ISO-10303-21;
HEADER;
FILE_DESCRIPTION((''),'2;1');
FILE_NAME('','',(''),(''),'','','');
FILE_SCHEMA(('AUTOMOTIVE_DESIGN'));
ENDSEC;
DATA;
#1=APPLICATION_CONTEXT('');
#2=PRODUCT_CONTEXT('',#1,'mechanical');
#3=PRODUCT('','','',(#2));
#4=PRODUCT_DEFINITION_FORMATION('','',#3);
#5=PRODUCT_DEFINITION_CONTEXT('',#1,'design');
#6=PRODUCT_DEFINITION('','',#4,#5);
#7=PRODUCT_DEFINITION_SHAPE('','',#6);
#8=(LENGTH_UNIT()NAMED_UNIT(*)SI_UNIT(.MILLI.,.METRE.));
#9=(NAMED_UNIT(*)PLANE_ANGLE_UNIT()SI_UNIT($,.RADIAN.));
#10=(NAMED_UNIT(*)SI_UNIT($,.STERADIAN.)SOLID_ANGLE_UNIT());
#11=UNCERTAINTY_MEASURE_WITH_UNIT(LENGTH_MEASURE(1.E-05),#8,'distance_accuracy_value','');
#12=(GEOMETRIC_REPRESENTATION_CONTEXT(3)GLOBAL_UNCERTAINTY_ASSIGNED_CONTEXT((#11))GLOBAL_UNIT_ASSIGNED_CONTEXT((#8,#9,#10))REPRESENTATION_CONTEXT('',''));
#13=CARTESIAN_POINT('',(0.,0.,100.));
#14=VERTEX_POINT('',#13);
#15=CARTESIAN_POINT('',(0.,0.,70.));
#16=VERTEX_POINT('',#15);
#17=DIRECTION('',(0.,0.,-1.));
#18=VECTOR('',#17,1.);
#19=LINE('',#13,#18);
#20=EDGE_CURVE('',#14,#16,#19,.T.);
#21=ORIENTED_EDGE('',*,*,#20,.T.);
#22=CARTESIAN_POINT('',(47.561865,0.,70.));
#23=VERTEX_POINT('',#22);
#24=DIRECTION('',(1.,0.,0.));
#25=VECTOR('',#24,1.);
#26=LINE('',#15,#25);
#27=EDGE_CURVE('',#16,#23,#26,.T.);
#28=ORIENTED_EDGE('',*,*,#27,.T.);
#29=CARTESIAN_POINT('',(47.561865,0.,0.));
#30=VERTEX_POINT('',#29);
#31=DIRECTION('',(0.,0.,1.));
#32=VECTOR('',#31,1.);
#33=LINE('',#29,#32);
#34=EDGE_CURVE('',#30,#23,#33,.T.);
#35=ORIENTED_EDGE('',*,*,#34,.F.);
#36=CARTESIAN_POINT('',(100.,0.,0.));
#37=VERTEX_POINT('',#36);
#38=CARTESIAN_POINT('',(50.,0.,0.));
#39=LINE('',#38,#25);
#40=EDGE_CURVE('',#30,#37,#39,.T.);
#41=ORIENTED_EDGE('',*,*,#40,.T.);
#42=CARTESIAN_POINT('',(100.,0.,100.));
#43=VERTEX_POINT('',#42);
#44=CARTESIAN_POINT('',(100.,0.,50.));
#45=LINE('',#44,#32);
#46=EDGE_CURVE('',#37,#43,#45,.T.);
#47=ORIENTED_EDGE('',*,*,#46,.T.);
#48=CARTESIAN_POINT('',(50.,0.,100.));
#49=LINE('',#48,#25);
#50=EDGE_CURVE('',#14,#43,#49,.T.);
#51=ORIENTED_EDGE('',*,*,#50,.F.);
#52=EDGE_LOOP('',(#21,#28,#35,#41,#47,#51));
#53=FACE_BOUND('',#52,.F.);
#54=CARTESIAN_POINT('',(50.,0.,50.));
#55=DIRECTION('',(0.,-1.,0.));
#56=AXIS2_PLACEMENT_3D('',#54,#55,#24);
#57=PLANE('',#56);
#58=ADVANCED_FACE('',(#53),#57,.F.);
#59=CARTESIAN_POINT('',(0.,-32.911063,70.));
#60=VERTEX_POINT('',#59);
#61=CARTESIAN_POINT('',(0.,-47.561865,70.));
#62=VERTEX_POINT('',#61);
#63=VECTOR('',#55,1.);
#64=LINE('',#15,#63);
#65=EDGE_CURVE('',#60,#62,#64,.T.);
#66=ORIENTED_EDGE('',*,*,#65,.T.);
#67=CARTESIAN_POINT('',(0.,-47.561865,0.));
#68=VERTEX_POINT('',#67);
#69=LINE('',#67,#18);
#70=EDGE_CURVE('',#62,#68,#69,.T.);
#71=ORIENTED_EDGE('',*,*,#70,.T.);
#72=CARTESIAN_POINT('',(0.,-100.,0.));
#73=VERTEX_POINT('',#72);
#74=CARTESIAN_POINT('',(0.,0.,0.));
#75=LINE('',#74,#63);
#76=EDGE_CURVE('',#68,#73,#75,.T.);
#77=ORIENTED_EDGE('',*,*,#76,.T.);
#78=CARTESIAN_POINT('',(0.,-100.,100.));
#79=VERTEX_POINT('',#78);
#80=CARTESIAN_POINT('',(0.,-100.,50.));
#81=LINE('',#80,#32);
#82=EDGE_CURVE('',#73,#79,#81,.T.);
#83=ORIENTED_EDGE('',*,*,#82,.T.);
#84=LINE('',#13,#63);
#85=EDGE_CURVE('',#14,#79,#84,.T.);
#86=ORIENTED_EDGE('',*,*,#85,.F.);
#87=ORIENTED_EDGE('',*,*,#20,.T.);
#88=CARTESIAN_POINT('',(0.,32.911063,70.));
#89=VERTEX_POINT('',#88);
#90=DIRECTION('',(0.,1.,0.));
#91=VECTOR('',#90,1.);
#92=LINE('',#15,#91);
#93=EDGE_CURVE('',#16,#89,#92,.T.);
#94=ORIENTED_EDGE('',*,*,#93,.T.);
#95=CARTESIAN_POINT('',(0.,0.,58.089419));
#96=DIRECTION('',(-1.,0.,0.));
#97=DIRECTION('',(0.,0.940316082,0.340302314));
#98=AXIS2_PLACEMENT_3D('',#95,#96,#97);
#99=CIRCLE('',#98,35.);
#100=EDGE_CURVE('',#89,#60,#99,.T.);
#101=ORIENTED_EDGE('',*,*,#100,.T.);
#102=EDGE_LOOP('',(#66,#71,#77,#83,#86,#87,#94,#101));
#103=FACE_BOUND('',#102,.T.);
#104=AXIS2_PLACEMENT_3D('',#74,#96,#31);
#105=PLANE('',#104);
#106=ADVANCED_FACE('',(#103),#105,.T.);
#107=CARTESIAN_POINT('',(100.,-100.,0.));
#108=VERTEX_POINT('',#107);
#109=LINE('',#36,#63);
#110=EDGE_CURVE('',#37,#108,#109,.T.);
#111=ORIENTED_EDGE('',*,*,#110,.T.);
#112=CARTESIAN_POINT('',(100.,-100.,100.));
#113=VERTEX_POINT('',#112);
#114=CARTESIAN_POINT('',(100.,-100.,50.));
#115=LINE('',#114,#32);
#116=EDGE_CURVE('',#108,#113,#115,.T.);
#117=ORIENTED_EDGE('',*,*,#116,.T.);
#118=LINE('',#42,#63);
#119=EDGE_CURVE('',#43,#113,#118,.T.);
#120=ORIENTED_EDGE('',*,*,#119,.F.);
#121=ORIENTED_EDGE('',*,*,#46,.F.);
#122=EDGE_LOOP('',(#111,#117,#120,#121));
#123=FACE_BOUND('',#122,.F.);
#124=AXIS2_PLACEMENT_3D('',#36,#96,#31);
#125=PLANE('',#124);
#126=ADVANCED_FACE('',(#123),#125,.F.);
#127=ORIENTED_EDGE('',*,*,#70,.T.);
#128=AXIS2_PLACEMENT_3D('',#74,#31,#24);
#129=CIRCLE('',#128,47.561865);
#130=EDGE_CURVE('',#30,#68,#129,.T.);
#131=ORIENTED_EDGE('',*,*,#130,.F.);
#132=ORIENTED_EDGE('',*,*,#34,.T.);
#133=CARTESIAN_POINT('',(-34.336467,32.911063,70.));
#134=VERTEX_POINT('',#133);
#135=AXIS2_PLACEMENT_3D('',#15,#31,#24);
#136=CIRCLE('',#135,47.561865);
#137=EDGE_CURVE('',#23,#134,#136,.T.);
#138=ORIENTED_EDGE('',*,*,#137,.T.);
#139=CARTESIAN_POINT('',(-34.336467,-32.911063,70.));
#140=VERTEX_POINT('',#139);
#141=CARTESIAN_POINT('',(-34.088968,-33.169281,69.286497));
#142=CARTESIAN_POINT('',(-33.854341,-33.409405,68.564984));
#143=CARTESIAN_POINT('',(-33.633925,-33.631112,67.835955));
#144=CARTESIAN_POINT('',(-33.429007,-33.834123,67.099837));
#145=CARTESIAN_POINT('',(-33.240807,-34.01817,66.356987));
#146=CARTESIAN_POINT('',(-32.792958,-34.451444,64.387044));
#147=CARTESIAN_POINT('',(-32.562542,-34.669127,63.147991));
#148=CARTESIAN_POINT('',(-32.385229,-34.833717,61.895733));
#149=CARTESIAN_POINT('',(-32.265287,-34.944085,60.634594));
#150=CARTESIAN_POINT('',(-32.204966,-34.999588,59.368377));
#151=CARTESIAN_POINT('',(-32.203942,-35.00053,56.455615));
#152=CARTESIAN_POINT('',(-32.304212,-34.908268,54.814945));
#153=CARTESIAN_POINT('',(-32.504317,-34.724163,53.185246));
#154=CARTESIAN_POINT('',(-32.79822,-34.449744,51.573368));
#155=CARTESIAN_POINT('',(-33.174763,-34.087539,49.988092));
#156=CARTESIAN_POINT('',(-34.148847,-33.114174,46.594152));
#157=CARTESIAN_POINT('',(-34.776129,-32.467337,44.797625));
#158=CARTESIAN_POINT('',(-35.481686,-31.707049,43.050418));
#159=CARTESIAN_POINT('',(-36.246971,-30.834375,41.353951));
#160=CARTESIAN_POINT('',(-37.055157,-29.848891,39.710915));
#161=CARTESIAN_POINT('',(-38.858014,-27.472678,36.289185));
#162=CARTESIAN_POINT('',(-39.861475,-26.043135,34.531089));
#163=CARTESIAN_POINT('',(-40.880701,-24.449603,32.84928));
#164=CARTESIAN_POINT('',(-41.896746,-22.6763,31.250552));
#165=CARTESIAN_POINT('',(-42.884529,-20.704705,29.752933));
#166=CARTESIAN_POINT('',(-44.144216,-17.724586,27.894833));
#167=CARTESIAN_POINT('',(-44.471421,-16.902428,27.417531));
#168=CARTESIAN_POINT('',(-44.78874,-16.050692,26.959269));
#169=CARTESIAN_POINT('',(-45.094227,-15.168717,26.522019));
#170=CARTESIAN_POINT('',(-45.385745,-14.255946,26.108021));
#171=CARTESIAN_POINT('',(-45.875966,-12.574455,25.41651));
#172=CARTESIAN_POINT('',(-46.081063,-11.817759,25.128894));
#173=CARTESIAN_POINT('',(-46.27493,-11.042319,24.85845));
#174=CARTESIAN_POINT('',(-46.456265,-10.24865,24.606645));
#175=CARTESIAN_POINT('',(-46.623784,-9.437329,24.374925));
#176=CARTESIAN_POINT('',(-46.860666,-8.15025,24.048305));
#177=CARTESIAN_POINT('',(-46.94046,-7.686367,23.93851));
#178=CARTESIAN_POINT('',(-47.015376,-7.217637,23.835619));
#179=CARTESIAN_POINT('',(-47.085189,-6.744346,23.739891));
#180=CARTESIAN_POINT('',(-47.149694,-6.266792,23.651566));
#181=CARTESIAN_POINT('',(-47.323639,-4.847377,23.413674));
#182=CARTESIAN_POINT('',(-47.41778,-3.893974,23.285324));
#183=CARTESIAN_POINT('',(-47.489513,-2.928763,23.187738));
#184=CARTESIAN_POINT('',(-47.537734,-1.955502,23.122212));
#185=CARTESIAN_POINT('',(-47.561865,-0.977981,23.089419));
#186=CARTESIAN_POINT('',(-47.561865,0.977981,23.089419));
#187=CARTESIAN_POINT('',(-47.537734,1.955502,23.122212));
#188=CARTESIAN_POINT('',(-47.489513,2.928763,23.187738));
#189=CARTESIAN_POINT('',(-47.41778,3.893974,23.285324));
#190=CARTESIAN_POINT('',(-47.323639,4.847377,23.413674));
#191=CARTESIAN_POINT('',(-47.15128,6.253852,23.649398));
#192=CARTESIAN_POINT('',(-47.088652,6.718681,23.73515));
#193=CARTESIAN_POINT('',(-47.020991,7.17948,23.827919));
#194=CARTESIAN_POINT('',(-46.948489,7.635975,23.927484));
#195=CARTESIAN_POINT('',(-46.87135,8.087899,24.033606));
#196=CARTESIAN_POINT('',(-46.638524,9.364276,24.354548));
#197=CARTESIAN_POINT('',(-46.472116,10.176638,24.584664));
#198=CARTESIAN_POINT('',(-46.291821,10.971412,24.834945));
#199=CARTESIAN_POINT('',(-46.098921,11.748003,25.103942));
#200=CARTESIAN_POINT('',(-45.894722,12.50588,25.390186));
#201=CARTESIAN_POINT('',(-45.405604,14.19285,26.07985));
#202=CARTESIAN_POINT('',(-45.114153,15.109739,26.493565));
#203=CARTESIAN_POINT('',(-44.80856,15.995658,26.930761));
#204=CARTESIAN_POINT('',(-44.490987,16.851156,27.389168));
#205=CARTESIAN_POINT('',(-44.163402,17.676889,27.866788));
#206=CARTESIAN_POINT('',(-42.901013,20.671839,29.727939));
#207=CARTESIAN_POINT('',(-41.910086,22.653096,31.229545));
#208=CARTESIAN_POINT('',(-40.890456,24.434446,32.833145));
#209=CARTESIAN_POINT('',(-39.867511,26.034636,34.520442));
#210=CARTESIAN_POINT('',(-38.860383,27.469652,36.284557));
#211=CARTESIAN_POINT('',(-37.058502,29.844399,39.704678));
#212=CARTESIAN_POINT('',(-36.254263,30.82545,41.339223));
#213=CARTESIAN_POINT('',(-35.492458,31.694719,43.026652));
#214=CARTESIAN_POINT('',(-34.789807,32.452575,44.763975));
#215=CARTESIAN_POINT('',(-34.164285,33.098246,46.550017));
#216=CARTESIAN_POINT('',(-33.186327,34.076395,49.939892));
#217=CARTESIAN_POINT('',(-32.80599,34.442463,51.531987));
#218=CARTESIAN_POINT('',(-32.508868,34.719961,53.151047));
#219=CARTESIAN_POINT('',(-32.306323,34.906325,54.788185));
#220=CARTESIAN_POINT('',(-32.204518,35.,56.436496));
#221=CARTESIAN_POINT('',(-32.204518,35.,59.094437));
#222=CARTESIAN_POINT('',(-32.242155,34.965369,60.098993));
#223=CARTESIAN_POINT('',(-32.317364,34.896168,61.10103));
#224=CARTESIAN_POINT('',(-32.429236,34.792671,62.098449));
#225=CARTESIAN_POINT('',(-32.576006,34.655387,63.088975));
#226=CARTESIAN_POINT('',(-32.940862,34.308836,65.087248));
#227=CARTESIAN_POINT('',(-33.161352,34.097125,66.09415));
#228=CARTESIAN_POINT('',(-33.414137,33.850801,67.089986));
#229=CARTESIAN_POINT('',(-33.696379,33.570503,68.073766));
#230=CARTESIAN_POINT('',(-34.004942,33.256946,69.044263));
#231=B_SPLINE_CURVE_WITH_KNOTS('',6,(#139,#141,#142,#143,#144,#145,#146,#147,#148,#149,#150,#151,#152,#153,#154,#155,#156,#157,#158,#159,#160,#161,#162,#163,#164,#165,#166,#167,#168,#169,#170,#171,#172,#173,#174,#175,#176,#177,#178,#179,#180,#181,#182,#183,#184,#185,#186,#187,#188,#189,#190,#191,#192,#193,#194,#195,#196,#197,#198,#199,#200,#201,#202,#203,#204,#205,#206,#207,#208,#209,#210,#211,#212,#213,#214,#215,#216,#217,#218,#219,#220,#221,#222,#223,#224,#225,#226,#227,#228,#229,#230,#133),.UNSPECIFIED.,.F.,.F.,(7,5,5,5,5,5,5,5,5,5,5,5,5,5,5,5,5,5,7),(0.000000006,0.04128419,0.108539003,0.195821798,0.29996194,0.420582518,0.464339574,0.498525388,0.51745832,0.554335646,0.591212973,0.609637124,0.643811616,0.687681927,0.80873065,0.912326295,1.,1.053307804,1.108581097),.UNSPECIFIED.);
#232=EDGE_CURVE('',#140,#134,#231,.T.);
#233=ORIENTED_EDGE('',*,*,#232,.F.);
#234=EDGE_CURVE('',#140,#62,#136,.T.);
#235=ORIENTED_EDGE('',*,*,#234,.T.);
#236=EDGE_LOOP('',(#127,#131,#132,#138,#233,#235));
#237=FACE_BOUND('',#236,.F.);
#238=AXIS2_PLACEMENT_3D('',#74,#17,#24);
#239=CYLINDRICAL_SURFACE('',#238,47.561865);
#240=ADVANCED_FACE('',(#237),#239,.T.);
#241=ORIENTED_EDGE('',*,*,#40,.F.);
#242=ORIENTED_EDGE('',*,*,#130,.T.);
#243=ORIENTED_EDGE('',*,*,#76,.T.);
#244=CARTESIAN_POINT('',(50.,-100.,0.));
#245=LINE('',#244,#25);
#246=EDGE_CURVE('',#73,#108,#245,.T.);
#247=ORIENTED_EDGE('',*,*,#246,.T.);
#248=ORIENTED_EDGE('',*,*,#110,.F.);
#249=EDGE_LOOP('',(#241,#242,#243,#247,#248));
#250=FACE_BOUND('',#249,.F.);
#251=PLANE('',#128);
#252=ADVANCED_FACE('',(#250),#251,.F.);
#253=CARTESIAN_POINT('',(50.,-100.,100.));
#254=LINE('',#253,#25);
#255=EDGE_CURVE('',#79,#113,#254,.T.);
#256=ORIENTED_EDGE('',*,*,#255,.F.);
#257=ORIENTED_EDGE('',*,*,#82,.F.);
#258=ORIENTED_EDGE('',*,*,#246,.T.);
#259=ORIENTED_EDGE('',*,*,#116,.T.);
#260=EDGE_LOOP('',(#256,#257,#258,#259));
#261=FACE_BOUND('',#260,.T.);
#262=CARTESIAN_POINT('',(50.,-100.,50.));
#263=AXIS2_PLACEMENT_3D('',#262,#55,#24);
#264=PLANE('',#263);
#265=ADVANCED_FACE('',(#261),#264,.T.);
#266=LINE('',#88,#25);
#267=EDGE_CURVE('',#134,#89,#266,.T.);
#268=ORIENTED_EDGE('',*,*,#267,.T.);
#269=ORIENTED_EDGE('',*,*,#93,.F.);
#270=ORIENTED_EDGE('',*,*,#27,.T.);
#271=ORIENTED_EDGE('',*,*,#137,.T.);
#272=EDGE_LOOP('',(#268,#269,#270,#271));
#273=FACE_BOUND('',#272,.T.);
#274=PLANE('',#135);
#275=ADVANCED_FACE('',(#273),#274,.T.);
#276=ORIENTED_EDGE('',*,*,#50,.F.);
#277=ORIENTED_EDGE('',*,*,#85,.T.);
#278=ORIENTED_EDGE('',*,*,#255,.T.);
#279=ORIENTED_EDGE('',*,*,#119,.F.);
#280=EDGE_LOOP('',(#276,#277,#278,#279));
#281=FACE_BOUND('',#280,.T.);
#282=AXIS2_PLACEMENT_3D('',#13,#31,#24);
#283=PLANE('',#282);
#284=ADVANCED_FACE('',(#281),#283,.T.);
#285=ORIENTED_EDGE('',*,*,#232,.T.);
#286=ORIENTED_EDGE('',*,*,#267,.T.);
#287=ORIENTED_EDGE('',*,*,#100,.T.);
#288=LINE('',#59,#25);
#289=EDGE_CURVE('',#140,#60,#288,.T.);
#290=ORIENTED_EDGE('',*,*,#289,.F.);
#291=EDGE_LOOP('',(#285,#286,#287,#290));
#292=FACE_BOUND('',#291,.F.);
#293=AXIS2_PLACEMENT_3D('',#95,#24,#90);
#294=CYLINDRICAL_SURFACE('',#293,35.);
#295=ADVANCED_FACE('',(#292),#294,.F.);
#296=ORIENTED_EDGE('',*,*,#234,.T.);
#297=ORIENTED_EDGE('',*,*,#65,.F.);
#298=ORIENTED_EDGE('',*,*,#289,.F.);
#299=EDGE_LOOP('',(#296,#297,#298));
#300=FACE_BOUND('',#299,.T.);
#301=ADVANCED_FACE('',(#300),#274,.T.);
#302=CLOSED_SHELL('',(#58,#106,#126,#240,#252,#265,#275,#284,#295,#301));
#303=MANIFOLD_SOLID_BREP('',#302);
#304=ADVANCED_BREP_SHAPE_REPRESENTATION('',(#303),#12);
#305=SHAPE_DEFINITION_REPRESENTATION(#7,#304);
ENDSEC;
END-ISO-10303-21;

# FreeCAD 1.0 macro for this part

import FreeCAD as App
import Part
import Sketcher
from FreeCAD import Vector

doc = App.newDocument("Part")
params = doc.addObject("Spreadsheet::Sheet", "Params")
for row, (alias, value) in enumerate([
    ("sketch1_width", "100 mm"),
    ("pad1_length", "100 mm"),
    ("pad2_length", "70 mm"),
    ("pad3_length", "70 mm"),
    ("sketch4_diameter", "70 mm"),
], start=1):
    params.set(f"A{row}", alias)
    params.set(f"B{row}", "=" + value)
    params.setAlias(f"B{row}", alias)

body = doc.addObject("PartDesign::Body", "Body")

sketch1 = body.newObject("Sketcher::SketchObject", "Sketch")
sketch1.AttachmentSupport = (doc.getObject("XZ_Plane"), [""])
sketch1.MapMode = "FlatFace"
sketch1.addGeometry([
    Part.LineSegment(Vector(0, 100, 0), Vector(0, 0, 0)),
    Part.LineSegment(Vector(0, 0, 0), Vector(100, 0, 0)),
    Part.LineSegment(Vector(100, 0, 0), Vector(100, 100, 0)),
    Part.LineSegment(Vector(100, 100, 0), Vector(0, 100, 0)),
], False)
sketch1.addConstraint([
    Sketcher.Constraint("Coincident", 0, 2, 1, 1),
    Sketcher.Constraint("Coincident", 1, 2, 2, 1),
    Sketcher.Constraint("Coincident", 2, 2, 3, 1),
    Sketcher.Constraint("Coincident", 3, 2, 0, 1),
    Sketcher.Constraint("Vertical", 0),
    Sketcher.Constraint("Horizontal", 1),
    Sketcher.Constraint("Vertical", 2),
    Sketcher.Constraint("Horizontal", 3),
    Sketcher.Constraint("Coincident", 0, 2, -1, 1),
    Sketcher.Constraint("Equal", 3, 0),
    Sketcher.Constraint("DistanceX", 1, 1, 1, 2, 100.0),
])
sketch1.setExpression("Constraints[10]", "Params.sketch1_width")
pad1 = body.newObject("PartDesign::Pad", "Pad")
pad1.Profile = sketch1
pad1.setExpression("Length", "Params.pad1_length")

sketch2 = body.newObject("Sketcher::SketchObject", "Sketch001")
sketch2.AttachmentSupport = (doc.getObject("XY_Plane"), [""])
sketch2.MapMode = "FlatFace"
sketch2.addGeometry(Part.Circle(Vector(0, 0, 0), Vector(0, 0, 1), 47), False)
sketch2.addConstraint([
    Sketcher.Constraint("Coincident", 0, 3, -1, 1),
    Sketcher.Constraint("Diameter", 0, 94.80596),
])
pad2 = body.newObject("PartDesign::Pad", "Pad001")
pad2.Profile = sketch2
pad2.setExpression("Length", "Params.pad2_length")

sketch3 = body.newObject("Sketcher::SketchObject", "Sketch002")
sketch3.AttachmentSupport = (doc.getObject("XY_Plane"), [""])
sketch3.MapMode = "FlatFace"
sketch3.addGeometry(Part.Circle(Vector(0, 0, 0), Vector(0, 0, 1), 48), False)
sketch3.addConstraint([
    Sketcher.Constraint("Coincident", 0, 3, -1, 1),
    Sketcher.Constraint("Diameter", 0, 95.12373),
])
pad3 = body.newObject("PartDesign::Pad", "Pad002")
pad3.Profile = sketch3
pad3.setExpression("Length", "Params.pad3_length")

sketch4 = body.newObject("Sketcher::SketchObject", "Sketch003")
sketch4.AttachmentSupport = (doc.getObject("YZ_Plane"), [""])
sketch4.MapMode = "FlatFace"
sketch4.addGeometry(Part.Circle(Vector(0, 58, 0), Vector(0, 0, 1), 35), False)
sketch4.addConstraint([
    Sketcher.Constraint("PointOnObject", 0, 3, -2),
    Sketcher.Constraint("Diameter", 0, 70.0),
    Sketcher.Constraint("DistanceY", -1, 1, 0, 3, 58.089419),
])
sketch4.setExpression("Constraints[1]", "Params.sketch4_diameter")
pocket1 = body.newObject("PartDesign::Pocket", "Pocket")
pocket1.Profile = sketch4
pocket1.Type = "ThroughAll"

doc.recompute()
